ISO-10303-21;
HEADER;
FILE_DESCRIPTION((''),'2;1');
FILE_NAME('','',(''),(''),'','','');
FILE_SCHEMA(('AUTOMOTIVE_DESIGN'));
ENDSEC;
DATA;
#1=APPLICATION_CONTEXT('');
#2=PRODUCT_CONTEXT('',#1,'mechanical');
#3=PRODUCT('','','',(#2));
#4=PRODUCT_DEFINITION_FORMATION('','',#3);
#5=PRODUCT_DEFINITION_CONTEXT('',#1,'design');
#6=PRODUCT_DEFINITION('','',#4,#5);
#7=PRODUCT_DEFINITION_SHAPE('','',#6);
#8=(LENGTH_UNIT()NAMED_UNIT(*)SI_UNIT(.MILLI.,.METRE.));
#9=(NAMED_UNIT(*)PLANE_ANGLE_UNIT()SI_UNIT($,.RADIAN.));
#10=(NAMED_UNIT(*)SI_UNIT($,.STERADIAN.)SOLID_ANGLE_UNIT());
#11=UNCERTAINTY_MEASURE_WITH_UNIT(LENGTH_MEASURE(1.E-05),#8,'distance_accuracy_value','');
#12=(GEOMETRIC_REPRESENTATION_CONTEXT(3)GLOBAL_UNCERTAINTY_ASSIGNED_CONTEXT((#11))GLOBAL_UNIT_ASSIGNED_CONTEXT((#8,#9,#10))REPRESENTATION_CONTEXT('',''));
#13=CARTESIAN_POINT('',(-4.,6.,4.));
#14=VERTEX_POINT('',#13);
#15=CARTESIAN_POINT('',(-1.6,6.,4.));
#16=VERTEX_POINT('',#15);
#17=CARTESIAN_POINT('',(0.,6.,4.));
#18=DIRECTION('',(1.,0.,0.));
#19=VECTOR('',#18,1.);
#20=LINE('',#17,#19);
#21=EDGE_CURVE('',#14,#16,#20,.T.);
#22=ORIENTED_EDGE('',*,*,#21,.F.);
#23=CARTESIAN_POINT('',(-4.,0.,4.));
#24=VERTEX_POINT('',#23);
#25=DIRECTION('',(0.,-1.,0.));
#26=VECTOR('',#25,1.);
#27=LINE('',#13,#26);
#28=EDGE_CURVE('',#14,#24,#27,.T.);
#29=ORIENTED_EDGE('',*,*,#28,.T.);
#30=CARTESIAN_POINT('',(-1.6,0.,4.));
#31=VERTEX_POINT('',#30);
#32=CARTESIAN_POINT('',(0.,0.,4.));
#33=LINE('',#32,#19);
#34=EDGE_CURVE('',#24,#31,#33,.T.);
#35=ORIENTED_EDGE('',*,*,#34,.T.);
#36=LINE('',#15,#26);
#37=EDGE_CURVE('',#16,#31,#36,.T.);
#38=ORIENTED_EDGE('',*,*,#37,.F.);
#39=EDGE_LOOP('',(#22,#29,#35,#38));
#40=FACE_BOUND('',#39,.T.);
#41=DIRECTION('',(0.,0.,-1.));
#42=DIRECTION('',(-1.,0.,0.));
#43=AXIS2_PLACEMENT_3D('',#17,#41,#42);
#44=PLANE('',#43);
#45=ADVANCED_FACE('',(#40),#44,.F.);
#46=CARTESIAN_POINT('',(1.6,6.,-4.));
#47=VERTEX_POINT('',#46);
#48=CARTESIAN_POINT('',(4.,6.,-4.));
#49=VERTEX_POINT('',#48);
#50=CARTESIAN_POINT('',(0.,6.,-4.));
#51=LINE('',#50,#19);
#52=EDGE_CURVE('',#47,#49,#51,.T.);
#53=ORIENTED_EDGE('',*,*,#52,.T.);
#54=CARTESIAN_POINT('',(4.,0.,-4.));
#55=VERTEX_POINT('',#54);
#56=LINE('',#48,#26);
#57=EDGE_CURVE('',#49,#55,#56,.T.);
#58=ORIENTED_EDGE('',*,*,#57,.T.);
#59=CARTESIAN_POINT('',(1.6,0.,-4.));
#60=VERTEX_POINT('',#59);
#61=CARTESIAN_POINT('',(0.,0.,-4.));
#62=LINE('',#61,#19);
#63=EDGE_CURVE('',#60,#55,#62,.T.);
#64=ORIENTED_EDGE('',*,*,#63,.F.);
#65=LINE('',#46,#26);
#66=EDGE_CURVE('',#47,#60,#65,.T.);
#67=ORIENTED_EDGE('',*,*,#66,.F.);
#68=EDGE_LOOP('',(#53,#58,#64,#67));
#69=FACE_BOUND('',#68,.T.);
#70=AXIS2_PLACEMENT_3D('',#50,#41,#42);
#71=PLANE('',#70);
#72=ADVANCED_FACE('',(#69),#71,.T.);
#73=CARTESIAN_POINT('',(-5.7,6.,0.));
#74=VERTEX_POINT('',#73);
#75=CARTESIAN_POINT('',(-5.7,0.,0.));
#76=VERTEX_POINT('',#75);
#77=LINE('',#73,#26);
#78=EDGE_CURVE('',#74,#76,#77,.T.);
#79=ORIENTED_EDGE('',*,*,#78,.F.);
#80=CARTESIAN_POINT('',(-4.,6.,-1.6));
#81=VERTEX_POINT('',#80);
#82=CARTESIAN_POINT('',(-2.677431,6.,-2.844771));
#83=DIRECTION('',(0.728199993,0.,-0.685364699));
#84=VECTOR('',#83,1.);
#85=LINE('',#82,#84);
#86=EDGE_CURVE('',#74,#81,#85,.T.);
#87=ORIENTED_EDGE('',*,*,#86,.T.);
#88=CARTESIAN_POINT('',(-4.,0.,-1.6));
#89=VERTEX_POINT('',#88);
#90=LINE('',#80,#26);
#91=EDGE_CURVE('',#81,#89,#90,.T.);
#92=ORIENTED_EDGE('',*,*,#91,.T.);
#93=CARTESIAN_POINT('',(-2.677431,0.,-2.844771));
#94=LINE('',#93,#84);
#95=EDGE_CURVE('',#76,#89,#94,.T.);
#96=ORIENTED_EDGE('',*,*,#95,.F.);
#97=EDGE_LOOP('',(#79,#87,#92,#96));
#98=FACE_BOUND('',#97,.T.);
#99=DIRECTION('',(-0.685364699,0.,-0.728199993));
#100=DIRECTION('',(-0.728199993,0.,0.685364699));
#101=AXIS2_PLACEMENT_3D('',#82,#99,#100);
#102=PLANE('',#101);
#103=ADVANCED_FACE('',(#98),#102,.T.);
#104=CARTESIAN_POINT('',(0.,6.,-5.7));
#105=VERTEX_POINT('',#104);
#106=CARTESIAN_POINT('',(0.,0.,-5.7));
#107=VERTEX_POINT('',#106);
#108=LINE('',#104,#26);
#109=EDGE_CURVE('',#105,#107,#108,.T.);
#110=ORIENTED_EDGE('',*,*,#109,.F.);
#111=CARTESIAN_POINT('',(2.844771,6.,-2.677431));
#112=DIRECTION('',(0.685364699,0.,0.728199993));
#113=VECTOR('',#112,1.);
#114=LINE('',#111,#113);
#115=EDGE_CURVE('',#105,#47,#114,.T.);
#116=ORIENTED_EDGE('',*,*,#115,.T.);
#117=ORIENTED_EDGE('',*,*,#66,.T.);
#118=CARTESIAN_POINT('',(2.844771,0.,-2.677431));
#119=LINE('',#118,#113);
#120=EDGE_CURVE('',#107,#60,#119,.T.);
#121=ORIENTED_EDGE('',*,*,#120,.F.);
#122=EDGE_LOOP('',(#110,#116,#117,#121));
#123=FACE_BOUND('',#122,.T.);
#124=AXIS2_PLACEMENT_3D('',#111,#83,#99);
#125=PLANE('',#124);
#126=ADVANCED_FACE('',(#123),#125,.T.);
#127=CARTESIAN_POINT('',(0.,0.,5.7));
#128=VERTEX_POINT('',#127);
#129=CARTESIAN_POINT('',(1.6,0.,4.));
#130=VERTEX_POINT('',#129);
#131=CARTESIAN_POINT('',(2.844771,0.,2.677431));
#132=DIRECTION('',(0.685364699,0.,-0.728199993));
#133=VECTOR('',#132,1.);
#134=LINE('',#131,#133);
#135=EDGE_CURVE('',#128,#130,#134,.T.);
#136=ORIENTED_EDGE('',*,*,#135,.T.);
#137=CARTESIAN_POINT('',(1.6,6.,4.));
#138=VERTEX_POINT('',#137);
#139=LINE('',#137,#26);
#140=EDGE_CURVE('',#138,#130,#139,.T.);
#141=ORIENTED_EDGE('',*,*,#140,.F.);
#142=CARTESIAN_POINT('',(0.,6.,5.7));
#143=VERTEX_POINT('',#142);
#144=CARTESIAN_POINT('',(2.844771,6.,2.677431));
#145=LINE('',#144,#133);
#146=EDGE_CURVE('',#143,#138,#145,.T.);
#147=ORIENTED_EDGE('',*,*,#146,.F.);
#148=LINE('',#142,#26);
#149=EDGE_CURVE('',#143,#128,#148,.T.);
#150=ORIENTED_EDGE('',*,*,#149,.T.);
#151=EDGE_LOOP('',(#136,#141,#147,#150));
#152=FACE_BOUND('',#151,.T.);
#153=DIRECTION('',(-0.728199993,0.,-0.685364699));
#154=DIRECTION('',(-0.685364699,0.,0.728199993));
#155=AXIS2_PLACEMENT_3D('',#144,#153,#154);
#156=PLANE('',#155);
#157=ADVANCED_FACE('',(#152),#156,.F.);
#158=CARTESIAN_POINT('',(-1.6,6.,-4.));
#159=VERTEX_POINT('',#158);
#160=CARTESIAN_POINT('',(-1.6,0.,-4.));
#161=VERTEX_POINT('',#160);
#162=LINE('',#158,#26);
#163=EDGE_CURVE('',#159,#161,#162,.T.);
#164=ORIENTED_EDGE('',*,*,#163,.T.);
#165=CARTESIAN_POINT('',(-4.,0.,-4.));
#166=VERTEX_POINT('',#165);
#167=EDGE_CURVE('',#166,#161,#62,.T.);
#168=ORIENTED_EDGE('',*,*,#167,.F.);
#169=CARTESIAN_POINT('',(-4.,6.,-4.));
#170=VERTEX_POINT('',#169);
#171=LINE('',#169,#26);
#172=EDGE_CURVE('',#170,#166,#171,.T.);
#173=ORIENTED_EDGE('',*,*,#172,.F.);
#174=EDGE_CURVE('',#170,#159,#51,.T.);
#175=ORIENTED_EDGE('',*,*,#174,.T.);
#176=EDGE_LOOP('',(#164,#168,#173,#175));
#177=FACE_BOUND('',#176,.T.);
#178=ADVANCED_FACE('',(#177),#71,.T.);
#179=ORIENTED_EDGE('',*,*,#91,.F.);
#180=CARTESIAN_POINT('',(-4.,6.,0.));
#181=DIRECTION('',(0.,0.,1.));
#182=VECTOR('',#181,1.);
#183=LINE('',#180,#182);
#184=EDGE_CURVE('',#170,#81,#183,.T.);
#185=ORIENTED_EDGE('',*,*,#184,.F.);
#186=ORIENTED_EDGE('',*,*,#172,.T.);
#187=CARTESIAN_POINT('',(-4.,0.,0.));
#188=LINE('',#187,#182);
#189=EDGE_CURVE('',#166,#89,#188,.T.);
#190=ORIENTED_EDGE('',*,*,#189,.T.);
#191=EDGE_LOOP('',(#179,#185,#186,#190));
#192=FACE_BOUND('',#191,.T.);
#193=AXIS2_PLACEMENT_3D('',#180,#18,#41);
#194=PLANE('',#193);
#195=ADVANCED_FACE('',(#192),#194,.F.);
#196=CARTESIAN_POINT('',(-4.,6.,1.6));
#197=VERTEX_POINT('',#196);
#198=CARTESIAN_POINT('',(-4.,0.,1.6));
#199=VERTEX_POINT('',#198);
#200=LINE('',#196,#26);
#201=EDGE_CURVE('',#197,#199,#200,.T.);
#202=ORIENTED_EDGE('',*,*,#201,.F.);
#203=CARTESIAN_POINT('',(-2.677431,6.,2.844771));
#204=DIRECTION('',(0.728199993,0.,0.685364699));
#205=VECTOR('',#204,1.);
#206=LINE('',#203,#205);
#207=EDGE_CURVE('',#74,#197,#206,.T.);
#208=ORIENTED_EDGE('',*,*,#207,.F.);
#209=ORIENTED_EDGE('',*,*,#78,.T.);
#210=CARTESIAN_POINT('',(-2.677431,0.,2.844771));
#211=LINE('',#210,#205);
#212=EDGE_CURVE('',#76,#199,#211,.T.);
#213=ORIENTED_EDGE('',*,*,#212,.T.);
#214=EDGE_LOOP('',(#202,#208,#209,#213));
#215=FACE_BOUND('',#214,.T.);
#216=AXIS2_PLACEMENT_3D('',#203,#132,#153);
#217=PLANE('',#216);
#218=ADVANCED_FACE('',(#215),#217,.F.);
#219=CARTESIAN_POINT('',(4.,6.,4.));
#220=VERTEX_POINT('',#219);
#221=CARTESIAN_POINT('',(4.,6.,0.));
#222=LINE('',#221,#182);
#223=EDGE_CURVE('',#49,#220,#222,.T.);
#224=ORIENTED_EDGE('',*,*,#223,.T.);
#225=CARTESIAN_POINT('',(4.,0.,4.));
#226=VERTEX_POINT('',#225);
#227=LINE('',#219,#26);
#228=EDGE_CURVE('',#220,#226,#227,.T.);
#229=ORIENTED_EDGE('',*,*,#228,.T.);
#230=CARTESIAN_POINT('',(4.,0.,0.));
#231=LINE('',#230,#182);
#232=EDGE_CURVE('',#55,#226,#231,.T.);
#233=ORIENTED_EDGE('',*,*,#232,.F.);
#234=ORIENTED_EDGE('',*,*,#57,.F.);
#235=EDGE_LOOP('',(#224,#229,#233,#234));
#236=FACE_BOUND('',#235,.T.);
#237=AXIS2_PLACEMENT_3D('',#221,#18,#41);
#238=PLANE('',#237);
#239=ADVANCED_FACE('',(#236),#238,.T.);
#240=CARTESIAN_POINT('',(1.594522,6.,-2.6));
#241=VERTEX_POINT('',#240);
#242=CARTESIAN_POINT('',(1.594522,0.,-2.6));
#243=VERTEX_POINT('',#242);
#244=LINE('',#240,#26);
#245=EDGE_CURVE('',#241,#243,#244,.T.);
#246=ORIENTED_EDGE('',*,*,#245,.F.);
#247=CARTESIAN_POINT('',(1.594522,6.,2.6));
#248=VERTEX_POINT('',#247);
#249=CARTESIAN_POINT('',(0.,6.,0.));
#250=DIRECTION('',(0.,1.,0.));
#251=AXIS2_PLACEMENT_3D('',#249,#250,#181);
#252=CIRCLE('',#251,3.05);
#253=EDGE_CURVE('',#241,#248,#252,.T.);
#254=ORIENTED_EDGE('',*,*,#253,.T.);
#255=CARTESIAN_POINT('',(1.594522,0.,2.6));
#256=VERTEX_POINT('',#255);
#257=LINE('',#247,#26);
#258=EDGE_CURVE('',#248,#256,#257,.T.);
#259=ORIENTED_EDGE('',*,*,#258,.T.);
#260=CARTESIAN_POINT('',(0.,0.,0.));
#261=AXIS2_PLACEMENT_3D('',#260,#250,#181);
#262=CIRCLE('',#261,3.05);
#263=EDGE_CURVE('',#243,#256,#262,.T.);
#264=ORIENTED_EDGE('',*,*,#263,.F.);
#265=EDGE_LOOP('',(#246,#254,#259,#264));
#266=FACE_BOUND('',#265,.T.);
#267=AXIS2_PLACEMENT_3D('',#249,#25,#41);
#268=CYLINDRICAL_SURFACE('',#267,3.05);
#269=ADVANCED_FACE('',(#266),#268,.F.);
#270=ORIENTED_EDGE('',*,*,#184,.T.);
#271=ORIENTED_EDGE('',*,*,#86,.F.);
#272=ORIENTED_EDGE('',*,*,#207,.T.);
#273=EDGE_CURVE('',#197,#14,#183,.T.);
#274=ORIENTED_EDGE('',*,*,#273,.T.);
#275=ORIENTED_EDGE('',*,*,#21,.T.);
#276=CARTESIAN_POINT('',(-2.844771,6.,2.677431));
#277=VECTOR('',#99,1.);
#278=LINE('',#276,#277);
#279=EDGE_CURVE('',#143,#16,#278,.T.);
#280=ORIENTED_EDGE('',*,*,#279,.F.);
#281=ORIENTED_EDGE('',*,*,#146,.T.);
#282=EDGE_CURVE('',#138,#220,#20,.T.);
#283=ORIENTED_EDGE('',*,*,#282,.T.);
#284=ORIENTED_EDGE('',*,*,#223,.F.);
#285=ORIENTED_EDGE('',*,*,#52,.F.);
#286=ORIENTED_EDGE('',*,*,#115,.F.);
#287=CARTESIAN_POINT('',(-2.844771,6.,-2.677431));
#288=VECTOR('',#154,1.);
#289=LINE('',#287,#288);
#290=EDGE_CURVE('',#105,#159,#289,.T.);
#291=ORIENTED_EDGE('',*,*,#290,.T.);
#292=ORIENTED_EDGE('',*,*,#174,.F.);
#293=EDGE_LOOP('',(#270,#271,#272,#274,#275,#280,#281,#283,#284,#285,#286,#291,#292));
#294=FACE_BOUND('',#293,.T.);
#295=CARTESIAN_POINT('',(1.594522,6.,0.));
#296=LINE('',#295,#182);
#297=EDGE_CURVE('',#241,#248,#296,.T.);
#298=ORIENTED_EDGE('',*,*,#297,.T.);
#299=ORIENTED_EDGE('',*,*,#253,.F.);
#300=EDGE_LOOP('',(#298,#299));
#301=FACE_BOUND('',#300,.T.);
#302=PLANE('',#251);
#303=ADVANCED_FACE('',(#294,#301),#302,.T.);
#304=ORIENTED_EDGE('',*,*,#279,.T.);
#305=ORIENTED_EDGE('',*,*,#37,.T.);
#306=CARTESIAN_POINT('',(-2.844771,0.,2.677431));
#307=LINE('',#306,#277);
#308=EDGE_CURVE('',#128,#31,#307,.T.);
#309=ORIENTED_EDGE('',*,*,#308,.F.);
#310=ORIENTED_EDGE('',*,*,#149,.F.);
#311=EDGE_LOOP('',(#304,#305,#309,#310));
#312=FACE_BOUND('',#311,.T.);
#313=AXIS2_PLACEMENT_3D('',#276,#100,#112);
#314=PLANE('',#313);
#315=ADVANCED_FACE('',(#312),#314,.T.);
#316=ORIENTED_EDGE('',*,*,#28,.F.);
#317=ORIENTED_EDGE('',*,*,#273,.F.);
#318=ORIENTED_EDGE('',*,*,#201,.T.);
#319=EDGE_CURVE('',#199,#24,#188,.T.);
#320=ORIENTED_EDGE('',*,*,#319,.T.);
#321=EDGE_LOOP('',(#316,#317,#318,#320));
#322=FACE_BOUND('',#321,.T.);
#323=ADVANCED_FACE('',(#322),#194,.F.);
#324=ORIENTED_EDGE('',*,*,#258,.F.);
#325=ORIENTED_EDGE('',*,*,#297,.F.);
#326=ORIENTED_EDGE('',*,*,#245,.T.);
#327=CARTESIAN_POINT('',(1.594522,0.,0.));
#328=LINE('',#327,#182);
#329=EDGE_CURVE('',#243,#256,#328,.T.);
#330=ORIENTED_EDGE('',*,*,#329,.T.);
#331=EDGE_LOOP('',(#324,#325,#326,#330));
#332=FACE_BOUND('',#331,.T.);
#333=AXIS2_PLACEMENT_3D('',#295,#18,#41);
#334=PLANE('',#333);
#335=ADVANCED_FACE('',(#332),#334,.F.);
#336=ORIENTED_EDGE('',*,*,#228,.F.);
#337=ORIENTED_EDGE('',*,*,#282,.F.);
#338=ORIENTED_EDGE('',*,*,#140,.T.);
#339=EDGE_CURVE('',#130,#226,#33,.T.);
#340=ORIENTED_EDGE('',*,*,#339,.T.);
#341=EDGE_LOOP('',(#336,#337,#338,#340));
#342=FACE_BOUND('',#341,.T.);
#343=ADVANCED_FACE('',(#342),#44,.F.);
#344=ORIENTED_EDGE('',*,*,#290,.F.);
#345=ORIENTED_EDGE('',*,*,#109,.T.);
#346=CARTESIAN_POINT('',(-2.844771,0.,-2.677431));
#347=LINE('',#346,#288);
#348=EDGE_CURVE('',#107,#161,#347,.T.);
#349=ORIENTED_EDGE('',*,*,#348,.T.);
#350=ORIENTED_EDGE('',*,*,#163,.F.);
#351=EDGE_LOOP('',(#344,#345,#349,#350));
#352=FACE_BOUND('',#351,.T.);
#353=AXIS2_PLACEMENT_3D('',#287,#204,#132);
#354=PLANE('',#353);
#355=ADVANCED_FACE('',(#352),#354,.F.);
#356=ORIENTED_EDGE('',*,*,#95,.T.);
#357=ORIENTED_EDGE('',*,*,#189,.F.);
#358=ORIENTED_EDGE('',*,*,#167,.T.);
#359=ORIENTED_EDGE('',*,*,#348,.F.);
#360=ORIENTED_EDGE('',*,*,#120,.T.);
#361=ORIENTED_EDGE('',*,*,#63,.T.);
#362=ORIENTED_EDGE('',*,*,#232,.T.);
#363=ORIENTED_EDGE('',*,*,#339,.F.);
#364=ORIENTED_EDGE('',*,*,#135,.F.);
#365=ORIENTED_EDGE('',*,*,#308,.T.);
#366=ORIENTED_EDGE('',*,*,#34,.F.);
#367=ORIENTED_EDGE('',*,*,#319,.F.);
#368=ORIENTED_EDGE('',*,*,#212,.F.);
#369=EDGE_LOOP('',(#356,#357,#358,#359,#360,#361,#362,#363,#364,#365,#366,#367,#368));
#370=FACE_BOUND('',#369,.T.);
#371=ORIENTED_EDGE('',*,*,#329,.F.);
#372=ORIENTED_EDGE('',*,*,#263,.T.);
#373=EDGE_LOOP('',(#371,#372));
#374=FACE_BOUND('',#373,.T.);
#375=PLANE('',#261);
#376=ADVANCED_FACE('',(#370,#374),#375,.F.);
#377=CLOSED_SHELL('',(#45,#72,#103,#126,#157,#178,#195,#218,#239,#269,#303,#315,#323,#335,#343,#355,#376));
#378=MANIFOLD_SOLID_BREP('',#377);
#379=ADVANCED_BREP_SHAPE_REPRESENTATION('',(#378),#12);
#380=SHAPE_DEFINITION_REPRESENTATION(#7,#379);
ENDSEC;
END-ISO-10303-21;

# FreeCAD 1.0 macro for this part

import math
import FreeCAD as App
import Part
import Sketcher

V = App.Vector

doc = App.newDocument("Part")
body = doc.addObject("PartDesign::Body", "Body")

sketch1 = body.newObject("Sketcher::SketchObject", "Sketch")
sketch1.AttachmentSupport = (doc.getObject("XZ_Plane"), [""])
sketch1.MapMode = "FlatFace"
sketch1.addGeometry(Part.LineSegment(V(-4, 1.6, 0), V(-4, 4, 0)), False)
sketch1.addGeometry(Part.LineSegment(V(-4, 4, 0), V(-1.6, 4, 0)), False)
sketch1.addGeometry(Part.LineSegment(V(-1.6, 4, 0), V(0, 5.7, 0)), False)
sketch1.addGeometry(Part.LineSegment(V(0, 5.7, 0), V(1.6, 4, 0)), False)
sketch1.addGeometry(Part.LineSegment(V(1.6, 4, 0), V(4, 4, 0)), False)
sketch1.addGeometry(Part.LineSegment(V(4, 4, 0), V(4, -4, 0)), False)
sketch1.addGeometry(Part.LineSegment(V(4, -4, 0), V(1.6, -4, 0)), False)
sketch1.addGeometry(Part.LineSegment(V(1.6, -4, 0), V(0, -5.7, 0)), False)
sketch1.addGeometry(Part.LineSegment(V(0, -5.7, 0), V(-1.6, -4, 0)), False)
sketch1.addGeometry(Part.LineSegment(V(-1.6, -4, 0), V(-4, -4, 0)), False)
sketch1.addGeometry(Part.LineSegment(V(-4, -4, 0), V(-4, -1.6, 0)), False)
sketch1.addGeometry(Part.LineSegment(V(-4, -1.6, 0), V(-5.7, 0, 0)), False)
sketch1.addGeometry(Part.LineSegment(V(-5.7, 0, 0), V(-4, 1.6, 0)), False)
sketch1.addGeometry(Part.ArcOfCircle(Part.Circle(V(0, 0, 0), V(0, 0, 1), 3), math.radians(58), math.radians(302)), False)
sketch1.addGeometry(Part.LineSegment(V(1.6, -2.6, 0), V(1.6, 2.6, 0)), False)
sketch1.addConstraint(Sketcher.Constraint("Coincident", 0, 2, 1, 1))
sketch1.addConstraint(Sketcher.Constraint("Coincident", 1, 2, 2, 1))
sketch1.addConstraint(Sketcher.Constraint("Coincident", 2, 2, 3, 1))
sketch1.addConstraint(Sketcher.Constraint("Coincident", 3, 2, 4, 1))
sketch1.addConstraint(Sketcher.Constraint("Coincident", 4, 2, 5, 1))
sketch1.addConstraint(Sketcher.Constraint("Coincident", 5, 2, 6, 1))
sketch1.addConstraint(Sketcher.Constraint("Coincident", 6, 2, 7, 1))
sketch1.addConstraint(Sketcher.Constraint("Coincident", 7, 2, 8, 1))
sketch1.addConstraint(Sketcher.Constraint("Coincident", 8, 2, 9, 1))
sketch1.addConstraint(Sketcher.Constraint("Coincident", 9, 2, 10, 1))
sketch1.addConstraint(Sketcher.Constraint("Coincident", 10, 2, 11, 1))
sketch1.addConstraint(Sketcher.Constraint("Coincident", 11, 2, 12, 1))
sketch1.addConstraint(Sketcher.Constraint("Coincident", 12, 2, 0, 1))
sketch1.addConstraint(Sketcher.Constraint("Coincident", 13, 1, 14, 2))
sketch1.addConstraint(Sketcher.Constraint("Coincident", 14, 1, 13, 2))
sketch1.addConstraint(Sketcher.Constraint("Vertical", 0))
sketch1.addConstraint(Sketcher.Constraint("Horizontal", 1))
sketch1.addConstraint(Sketcher.Constraint("Horizontal", 4))
sketch1.addConstraint(Sketcher.Constraint("Vertical", 5))
sketch1.addConstraint(Sketcher.Constraint("Horizontal", 6))
sketch1.addConstraint(Sketcher.Constraint("Horizontal", 9))
sketch1.addConstraint(Sketcher.Constraint("Vertical", 10))
sketch1.addConstraint(Sketcher.Constraint("Vertical", 14))
sketch1.addConstraint(Sketcher.Constraint("Coincident", 13, 3, -1, 1))
sketch1.addConstraint(Sketcher.Constraint("Symmetric", 0, 2, 5, 2, -1, 1))
sketch1.addConstraint(Sketcher.Constraint("Symmetric", 2, 2, 7, 2, -1, 1))
sketch1.addConstraint(Sketcher.Constraint("Symmetric", 3, 2, 8, 2, -1, 1))
sketch1.addConstraint(Sketcher.Constraint("Symmetric", 1, 2, 3, 2, -2))
sketch1.addConstraint(Sketcher.Constraint("Symmetric", 10, 2, 12, 2, -1))
sketch1.addConstraint(Sketcher.Constraint("PointOnObject", 2, 2, -2))
sketch1.addConstraint(Sketcher.Constraint("PointOnObject", 11, 2, -1))
sketch1.addConstraint(Sketcher.Constraint("Parallel", 2, 7))
sketch1.addConstraint(Sketcher.Constraint("Perpendicular", 7, 11))
sketch1.addConstraint(Sketcher.Constraint("Equal", 9, 0))
sketch1.addConstraint(Sketcher.Constraint("Equal", 8, 11))
sketch1.addConstraint(Sketcher.Constraint("DistanceY", 5, 2, 5, 1, 8.0))
sketch1.addConstraint(Sketcher.Constraint("Radius", 13, 3.05))
sketch1.addConstraint(Sketcher.Constraint("DistanceX", 1, 1, 1, 2, 2.4))
sketch1.addConstraint(Sketcher.Constraint("DistanceY", 14, 1, 14, 2, 5.2))
sketch1.addConstraint(Sketcher.Constraint("DistanceY", -1, 1, 2, 2, 5.7))
pad1 = body.newObject("PartDesign::Pad", "Pad")
pad1.Profile = sketch1
pad1.Length = 6
pad1.Reversed = True

doc.recompute()
